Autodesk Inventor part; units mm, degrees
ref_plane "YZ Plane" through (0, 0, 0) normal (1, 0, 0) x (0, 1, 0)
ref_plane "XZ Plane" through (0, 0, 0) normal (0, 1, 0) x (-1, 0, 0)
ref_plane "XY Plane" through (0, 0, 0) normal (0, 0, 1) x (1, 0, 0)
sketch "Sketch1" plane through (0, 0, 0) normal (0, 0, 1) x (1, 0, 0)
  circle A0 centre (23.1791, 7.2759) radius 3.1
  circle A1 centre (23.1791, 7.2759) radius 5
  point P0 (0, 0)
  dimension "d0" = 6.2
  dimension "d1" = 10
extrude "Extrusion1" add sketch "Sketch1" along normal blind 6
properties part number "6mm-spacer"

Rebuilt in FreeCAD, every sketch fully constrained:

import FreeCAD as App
import Part
import Sketcher
Q = App.Units.Quantity

doc = App.newDocument("Part")
body = doc.addObject("PartDesign::Body", "Body")

# Sketch on XY plane
sketch1 = doc.addObject("Sketcher::SketchObject", "Sketch")
body.addObject(sketch1)
sketch1.AttachmentSupport = (doc.XY_Plane, [""])
sketch1.MapMode = "FlatFace"
sketch1.addGeometry([
    Part.Circle(App.Vector(23.2, 7.3, 0), App.Vector(0, 0, 1), 5),
    Part.Circle(App.Vector(23.2, 7.3, 0), App.Vector(0, 0, 1), 3.1),
], False)
sketch1.addConstraint([
    Sketcher.Constraint("Coincident", 1, 3, 0, 3),
    Sketcher.Constraint("Diameter", 0, Q("10 mm")),
    Sketcher.Constraint("Diameter", 1, Q("6.2 mm")),
    Sketcher.Constraint("DistanceX", -1, 1, 0, 3, Q("23.179 mm")),
    Sketcher.Constraint("DistanceY", -1, 1, 0, 3, Q("7.276 mm")),
])
pad1 = doc.addObject("PartDesign::Pad", "Pad")
body.addObject(pad1)
pad1.Profile = sketch1
pad1.Length = 6

doc.recompute()
